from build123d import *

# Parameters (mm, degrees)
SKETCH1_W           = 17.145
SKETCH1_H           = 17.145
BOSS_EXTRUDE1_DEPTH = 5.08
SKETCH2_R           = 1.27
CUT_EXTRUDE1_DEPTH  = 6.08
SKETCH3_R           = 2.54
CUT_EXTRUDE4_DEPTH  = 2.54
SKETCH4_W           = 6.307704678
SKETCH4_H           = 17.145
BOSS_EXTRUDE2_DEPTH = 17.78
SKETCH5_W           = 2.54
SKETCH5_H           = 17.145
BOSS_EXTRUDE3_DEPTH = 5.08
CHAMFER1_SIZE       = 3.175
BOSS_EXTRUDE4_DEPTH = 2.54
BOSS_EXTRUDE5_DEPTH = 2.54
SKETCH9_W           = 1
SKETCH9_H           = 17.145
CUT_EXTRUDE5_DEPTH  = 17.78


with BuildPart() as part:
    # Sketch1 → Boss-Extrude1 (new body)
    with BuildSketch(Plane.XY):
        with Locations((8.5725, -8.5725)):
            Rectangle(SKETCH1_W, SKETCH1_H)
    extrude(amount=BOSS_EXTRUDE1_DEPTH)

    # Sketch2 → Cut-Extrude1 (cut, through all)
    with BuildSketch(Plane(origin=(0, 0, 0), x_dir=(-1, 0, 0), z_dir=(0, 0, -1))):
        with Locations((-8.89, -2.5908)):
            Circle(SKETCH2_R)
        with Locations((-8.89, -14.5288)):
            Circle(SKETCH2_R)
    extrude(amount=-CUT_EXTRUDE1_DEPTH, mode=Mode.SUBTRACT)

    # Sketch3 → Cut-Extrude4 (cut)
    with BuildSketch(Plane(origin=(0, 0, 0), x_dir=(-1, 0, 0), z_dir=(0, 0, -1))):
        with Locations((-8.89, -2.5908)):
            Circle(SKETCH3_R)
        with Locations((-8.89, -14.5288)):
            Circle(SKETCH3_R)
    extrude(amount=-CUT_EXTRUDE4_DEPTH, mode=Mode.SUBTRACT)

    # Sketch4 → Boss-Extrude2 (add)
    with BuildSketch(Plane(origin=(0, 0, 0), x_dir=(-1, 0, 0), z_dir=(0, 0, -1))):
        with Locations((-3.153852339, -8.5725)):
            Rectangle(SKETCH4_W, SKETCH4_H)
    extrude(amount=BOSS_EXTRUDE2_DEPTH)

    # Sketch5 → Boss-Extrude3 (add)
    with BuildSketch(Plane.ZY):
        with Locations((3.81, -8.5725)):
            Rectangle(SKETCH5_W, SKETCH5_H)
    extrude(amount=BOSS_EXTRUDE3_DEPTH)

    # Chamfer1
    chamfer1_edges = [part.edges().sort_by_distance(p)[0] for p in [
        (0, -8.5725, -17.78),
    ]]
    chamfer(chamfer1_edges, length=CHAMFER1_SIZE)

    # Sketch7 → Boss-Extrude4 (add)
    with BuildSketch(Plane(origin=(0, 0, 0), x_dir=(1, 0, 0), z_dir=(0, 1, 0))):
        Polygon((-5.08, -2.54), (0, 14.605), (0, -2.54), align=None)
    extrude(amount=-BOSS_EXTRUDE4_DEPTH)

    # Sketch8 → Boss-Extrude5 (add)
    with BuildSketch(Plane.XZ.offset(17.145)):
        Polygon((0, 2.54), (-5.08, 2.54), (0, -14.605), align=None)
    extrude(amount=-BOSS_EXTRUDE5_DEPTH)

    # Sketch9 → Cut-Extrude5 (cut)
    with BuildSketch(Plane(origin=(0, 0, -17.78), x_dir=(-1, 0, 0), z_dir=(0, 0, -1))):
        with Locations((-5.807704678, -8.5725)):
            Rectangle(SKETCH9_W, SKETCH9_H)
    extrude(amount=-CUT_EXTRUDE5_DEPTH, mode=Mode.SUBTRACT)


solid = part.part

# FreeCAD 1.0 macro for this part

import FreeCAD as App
import Part
import Sketcher
from FreeCAD import Vector
Q = App.Units.Quantity


def edges_at(feature, points):
    """Names of the edges that pass closest to the given points."""
    edges = feature.Shape.Edges
    near = lambda p: min(range(len(edges)), key=lambda i: edges[i].distToShape(Part.Vertex(*p))[0])
    return sorted({f"Edge{near(p) + 1}" for p in points})

doc = App.newDocument("Part")
body = doc.addObject("PartDesign::Body", "Body")

sketch1 = body.newObject("Sketcher::SketchObject", "Sketch")
sketch1.AttachmentSupport = (doc.getObject("XY_Plane"), [""])
sketch1.MapMode = "FlatFace"
sketch1.addGeometry([
    Part.LineSegment(Vector(0, 0, 0), Vector(0, -17, 0)),
    Part.LineSegment(Vector(0, -17, 0), Vector(17, -17, 0)),
    Part.LineSegment(Vector(17, -17, 0), Vector(17, 0, 0)),
    Part.LineSegment(Vector(17, 0, 0), Vector(0, 0, 0)),
], False)
sketch1.addConstraint([
    Sketcher.Constraint("Coincident", 0, 2, 1, 1),
    Sketcher.Constraint("Coincident", 1, 2, 2, 1),
    Sketcher.Constraint("Coincident", 2, 2, 3, 1),
    Sketcher.Constraint("Coincident", 3, 2, 0, 1),
    Sketcher.Constraint("Vertical", 0),
    Sketcher.Constraint("Horizontal", 1),
    Sketcher.Constraint("Vertical", 2),
    Sketcher.Constraint("Horizontal", 3),
    Sketcher.Constraint("Coincident", 3, 2, -1, 1),
    Sketcher.Constraint("Equal", 3, 0),
    Sketcher.Constraint("DistanceX", 1, 1, 1, 2, Q("0.675 in")),
])
pad1 = body.newObject("PartDesign::Pad", "Pad")
pad1.Profile = sketch1
pad1.Length = Q("0.2 in")

sketch2 = body.newObject("Sketcher::SketchObject", "Sketch001")
sketch2.AttachmentSupport = (doc.getObject("XY_Plane"), [""])
sketch2.MapMode = "FlatFace"
sketch2.addGeometry([
    Part.Circle(Vector(8.9, -2.6, 0), Vector(0, 0, 1), 1.3),
    Part.Circle(Vector(8.9, -14.5, 0), Vector(0, 0, 1), 1.3),
], False)
sketch2.addConstraint([
    Sketcher.Constraint("Equal", 0, 1),
    Sketcher.Constraint("Vertical", 0, 3, 1, 3),
    Sketcher.Constraint("Diameter", 0, Q("0.1 in")),
    Sketcher.Constraint("DistanceX", -1, 1, 0, 3, Q("0.35 in")),
    Sketcher.Constraint("DistanceY", 1, 3, 0, 3, Q("0.47 in")),
    Sketcher.Constraint("DistanceY", 0, 3, -1, 1, Q("0.102 in")),
])
pocket1 = body.newObject("PartDesign::Pocket", "Pocket")
pocket1.Profile = sketch2
pocket1.Type = "ThroughAll"
pocket1.Reversed = True

sketch3 = body.newObject("Sketcher::SketchObject", "Sketch002")
sketch3.AttachmentSupport = (doc.getObject("XY_Plane"), [""])
sketch3.MapMode = "FlatFace"
sketch3.addGeometry([
    Part.Circle(Vector(8.9, -2.6, 0), Vector(0, 0, 1), 2.5),
    Part.Circle(Vector(8.9, -14.5, 0), Vector(0, 0, 1), 2.5),
], False)
sketch3.addConstraint([
    Sketcher.Constraint("Equal", 0, 1),
    Sketcher.Constraint("Vertical", 0, 3, 1, 3),
    Sketcher.Constraint("Diameter", 0, Q("0.2 in")),
    Sketcher.Constraint("DistanceX", -1, 1, 0, 3, Q("0.35 in")),
    Sketcher.Constraint("DistanceY", 1, 3, 0, 3, Q("0.47 in")),
    Sketcher.Constraint("DistanceY", 0, 3, -1, 1, Q("0.102 in")),
])
pocket2 = body.newObject("PartDesign::Pocket", "Pocket001")
pocket2.Profile = sketch3
pocket2.Length = Q("0.1 in")
pocket2.Reversed = True

sketch4 = body.newObject("Sketcher::SketchObject", "Sketch003")
sketch4.AttachmentSupport = (doc.getObject("XY_Plane"), [""])
sketch4.MapMode = "FlatFace"
sketch4.addGeometry([
    Part.LineSegment(Vector(6, 0, 0), Vector(6, -17, 0)),
    Part.LineSegment(Vector(6, -17, 0), Vector(0, -17, 0)),
    Part.LineSegment(Vector(0, -17, 0), Vector(0, 0, 0)),
    Part.LineSegment(Vector(0, 0, 0), Vector(6, 0, 0)),
], False)
sketch4.addConstraint([
    Sketcher.Constraint("Coincident", 0, 2, 1, 1),
    Sketcher.Constraint("Coincident", 1, 2, 2, 1),
    Sketcher.Constraint("Coincident", 2, 2, 3, 1),
    Sketcher.Constraint("Coincident", 3, 2, 0, 1),
    Sketcher.Constraint("Vertical", 0),
    Sketcher.Constraint("Horizontal", 1),
    Sketcher.Constraint("Vertical", 2),
    Sketcher.Constraint("Horizontal", 3),
    Sketcher.Constraint("Coincident", 2, 2, -1, 1),
    Sketcher.Constraint("DistanceY", 0, 2, 0, 1, Q("0.675 in")),
    Sketcher.Constraint("DistanceX", 1, 2, 1, 1, Q("6.307705 mm")),
])
pad2 = body.newObject("PartDesign::Pad", "Pad001")
pad2.Profile = sketch4
pad2.Length = Q("0.7 in")
pad2.Reversed = True

sketch5 = body.newObject("Sketcher::SketchObject", "Sketch004")
sketch5.AttachmentSupport = (doc.getObject("YZ_Plane"), [""])
sketch5.MapMode = "FlatFace"
sketch5.addGeometry([
    Part.LineSegment(Vector(0, 2.5, 0), Vector(-17.1, 2.5, 0)),
    Part.LineSegment(Vector(-17.1, 2.5, 0), Vector(-17.1, 5.1, 0)),
    Part.LineSegment(Vector(-17.1, 5.1, 0), Vector(0, 5.1, 0)),
    Part.LineSegment(Vector(0, 5.1, 0), Vector(0, 2.5, 0)),
], False)
sketch5.addConstraint([
    Sketcher.Constraint("Coincident", 0, 2, 1, 1),
    Sketcher.Constraint("Coincident", 1, 2, 2, 1),
    Sketcher.Constraint("Coincident", 2, 2, 3, 1),
    Sketcher.Constraint("Coincident", 3, 2, 0, 1),
    Sketcher.Constraint("Horizontal", 0),
    Sketcher.Constraint("Vertical", 1),
    Sketcher.Constraint("Horizontal", 2),
    Sketcher.Constraint("Vertical", 3),
    Sketcher.Constraint("PointOnObject", 2, 2, -2),
    Sketcher.Constraint("DistanceY", 1, 1, 1, 2, Q("0.1 in")),
    Sketcher.Constraint("DistanceY", -1, 1, 0, 2, Q("0.1 in")),
    Sketcher.Constraint("DistanceX", 0, 2, 0, 1, Q("0.675 in")),
])
pad3 = body.newObject("PartDesign::Pad", "Pad002")
pad3.Profile = sketch5
pad3.Length = Q("0.2 in")
pad3.Reversed = True
doc.recompute()

chamfer = body.newObject("PartDesign::Chamfer", "Chamfer")
chamfer.Base = (pad3, edges_at(pad3, [(0, -8.572, -17.78)]))
chamfer.Size = Q("0.125 in")

sketch6 = body.newObject("Sketcher::SketchObject", "Sketch005")
sketch6.AttachmentSupport = (doc.getObject("XZ_Plane"), [""])
sketch6.MapMode = "FlatFace"
sketch6.addGeometry([
    Part.LineSegment(Vector(0, -15, 0), Vector(-5, 3, 0)),
    Part.LineSegment(Vector(-5, 3, 0), Vector(0, 3, 0)),
    Part.LineSegment(Vector(0, 3, 0), Vector(0, -15, 0)),
], False)
sketch6.addConstraint([
    Sketcher.Constraint("Coincident", 0, 2, 1, 1),
    Sketcher.Constraint("Coincident", 1, 2, 2, 1),
    Sketcher.Constraint("Coincident", 2, 2, 0, 1),
    Sketcher.Constraint("Horizontal", 1),
    Sketcher.Constraint("Vertical", 2),
    Sketcher.Constraint("PointOnObject", 1, 2, -2),
    Sketcher.Constraint("DistanceX", 1, 1, 1, 2, Q("0.2 in")),
    Sketcher.Constraint("DistanceY", -1, 1, 0, 2, Q("0.1 in")),
    Sketcher.Constraint("DistanceY", 2, 2, 2, 1, Q("0.675 in")),
])
pad4 = body.newObject("PartDesign::Pad", "Pad003")
pad4.Profile = sketch6
pad4.Length = Q("0.1 in")

sketch7 = body.newObject("Sketcher::SketchObject", "Sketch006")
sketch7.AttachmentSupport = (doc.getObject("XZ_Plane"), [""])
sketch7.MapMode = "FlatFace"
sketch7.AttachmentOffset = App.Placement(Vector(0, 0, 0.675 * 25.4), App.Rotation())
sketch7.addGeometry([
    Part.LineSegment(Vector(0, 3, 0), Vector(-5, 3, 0)),
    Part.LineSegment(Vector(-5, 3, 0), Vector(0, -15, 0)),
    Part.LineSegment(Vector(0, -15, 0), Vector(0, 3, 0)),
], False)
sketch7.addConstraint([
    Sketcher.Constraint("Coincident", 0, 2, 1, 1),
    Sketcher.Constraint("Coincident", 1, 2, 2, 1),
    Sketcher.Constraint("Coincident", 2, 2, 0, 1),
    Sketcher.Constraint("Horizontal", 0),
    Sketcher.Constraint("Vertical", 2),
    Sketcher.Constraint("PointOnObject", 1, 2, -2),
    Sketcher.Constraint("DistanceX", 0, 2, 0, 1, Q("0.2 in")),
    Sketcher.Constraint("DistanceY", -1, 1, 0, 2, Q("0.1 in")),
    Sketcher.Constraint("DistanceY", 2, 1, 2, 2, Q("0.675 in")),
])
pad5 = body.newObject("PartDesign::Pad", "Pad004")
pad5.Profile = sketch7
pad5.Length = Q("0.1 in")
pad5.Reversed = True

sketch8 = body.newObject("Sketcher::SketchObject", "Sketch007")
sketch8.AttachmentSupport = (doc.getObject("XY_Plane"), [""])
sketch8.MapMode = "FlatFace"
sketch8.AttachmentOffset = App.Placement(Vector(0, 0, -0.7 * 25.4), App.Rotation())
sketch8.addGeometry([
    Part.LineSegment(Vector(6.3, 0, 0), Vector(6.3, -17.1, 0)),
    Part.LineSegment(Vector(6.3, -17.1, 0), Vector(5.3, -17.1, 0)),
    Part.LineSegment(Vector(5.3, -17.1, 0), Vector(5.3, 0, 0)),
    Part.LineSegment(Vector(5.3, 0, 0), Vector(6.3, 0, 0)),
], False)
sketch8.addConstraint([
    Sketcher.Constraint("Coincident", 0, 2, 1, 1),
    Sketcher.Constraint("Coincident", 1, 2, 2, 1),
    Sketcher.Constraint("Coincident", 2, 2, 3, 1),
    Sketcher.Constraint("Coincident", 3, 2, 0, 1),
    Sketcher.Constraint("Vertical", 0),
    Sketcher.Constraint("Horizontal", 1),
    Sketcher.Constraint("Vertical", 2),
    Sketcher.Constraint("Horizontal", 3),
    Sketcher.Constraint("PointOnObject", 2, 2, -1),
    Sketcher.Constraint("DistanceY", 0, 2, 0, 1, Q("0.675 in")),
    Sketcher.Constraint("DistanceX", 1, 2, 1, 1, Q("1 mm")),
    Sketcher.Constraint("DistanceX", -1, 1, 0, 2, Q("6.307705 mm")),
])
pocket3 = body.newObject("PartDesign::Pocket", "Pocket002")
pocket3.Profile = sketch8
pocket3.Length = Q("0.7 in")
pocket3.Reversed = True

doc.recompute()
